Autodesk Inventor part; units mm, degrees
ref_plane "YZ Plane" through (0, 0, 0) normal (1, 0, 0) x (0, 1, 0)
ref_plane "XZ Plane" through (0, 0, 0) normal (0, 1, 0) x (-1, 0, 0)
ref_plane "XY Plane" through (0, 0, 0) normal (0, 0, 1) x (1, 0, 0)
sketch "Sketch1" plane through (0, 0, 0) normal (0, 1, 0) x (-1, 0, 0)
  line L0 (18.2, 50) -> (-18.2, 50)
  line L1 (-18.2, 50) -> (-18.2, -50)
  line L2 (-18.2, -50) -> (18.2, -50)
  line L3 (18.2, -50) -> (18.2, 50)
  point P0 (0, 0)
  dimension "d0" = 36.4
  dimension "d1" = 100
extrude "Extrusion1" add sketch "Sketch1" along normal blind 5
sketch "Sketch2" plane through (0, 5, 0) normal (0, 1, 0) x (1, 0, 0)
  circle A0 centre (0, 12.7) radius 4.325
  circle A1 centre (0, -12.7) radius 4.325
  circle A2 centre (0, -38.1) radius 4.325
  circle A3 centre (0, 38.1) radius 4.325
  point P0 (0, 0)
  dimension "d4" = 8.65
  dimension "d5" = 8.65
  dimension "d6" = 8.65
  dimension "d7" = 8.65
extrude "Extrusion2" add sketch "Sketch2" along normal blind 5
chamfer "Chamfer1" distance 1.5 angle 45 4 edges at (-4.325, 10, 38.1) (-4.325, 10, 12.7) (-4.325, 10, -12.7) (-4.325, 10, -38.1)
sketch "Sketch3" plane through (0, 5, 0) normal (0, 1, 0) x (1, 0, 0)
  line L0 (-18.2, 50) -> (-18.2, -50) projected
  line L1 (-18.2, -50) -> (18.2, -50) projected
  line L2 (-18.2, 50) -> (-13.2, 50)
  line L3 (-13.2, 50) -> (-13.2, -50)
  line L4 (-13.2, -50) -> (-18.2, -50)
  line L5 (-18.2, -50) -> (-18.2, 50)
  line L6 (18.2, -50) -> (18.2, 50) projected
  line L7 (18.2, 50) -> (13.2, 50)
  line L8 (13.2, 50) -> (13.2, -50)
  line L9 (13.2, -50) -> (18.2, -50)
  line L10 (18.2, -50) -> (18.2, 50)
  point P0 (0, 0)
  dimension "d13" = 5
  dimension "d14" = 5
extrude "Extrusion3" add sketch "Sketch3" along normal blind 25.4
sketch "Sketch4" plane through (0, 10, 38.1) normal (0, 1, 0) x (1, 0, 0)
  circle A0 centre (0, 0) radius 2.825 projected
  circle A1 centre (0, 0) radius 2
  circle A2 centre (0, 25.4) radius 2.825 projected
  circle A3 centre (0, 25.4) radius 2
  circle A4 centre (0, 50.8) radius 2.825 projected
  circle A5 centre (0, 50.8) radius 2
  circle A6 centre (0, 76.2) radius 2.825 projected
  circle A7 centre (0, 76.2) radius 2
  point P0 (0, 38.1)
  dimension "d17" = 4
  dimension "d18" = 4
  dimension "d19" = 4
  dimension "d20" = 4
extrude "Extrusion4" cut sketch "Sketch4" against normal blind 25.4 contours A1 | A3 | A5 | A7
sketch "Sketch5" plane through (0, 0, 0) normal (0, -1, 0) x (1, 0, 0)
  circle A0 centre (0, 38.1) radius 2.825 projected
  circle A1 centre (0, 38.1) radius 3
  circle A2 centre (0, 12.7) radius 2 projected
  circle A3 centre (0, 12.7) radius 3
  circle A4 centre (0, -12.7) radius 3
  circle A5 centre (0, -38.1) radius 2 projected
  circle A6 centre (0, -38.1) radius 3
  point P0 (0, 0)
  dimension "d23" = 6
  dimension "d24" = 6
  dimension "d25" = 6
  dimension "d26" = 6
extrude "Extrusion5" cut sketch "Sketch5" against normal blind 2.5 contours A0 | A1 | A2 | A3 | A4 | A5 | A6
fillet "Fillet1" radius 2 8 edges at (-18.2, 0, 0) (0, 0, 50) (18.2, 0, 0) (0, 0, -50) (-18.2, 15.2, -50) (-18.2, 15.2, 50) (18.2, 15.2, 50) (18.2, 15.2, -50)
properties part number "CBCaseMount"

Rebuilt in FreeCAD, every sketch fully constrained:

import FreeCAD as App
import Part
import Sketcher
from FreeCAD import Vector


def edges_at(feature, points):
    """Names of the edges that pass closest to the given points."""
    edges = feature.Shape.Edges
    near = lambda p: min(range(len(edges)), key=lambda i: edges[i].distToShape(Part.Vertex(*p))[0])
    return sorted({f"Edge{near(p) + 1}" for p in points})


def add_polygon(sketch, points):
    """Adds a closed chain of lines whose ends are joined by coincident constraints."""
    first, n = sketch.GeometryCount, len(points)
    for a, b in zip(points, points[1:] + points[:1]):
        sketch.addGeometry(Part.LineSegment(App.Vector(*a, 0), App.Vector(*b, 0)), False)
    for i in range(n):
        sketch.addConstraint(Sketcher.Constraint("Coincident", first + i, 2, first + (i + 1) % n, 1))

doc = App.newDocument("Part")
params = doc.addObject("Spreadsheet::Sheet", "Params")
for row, (alias, value) in enumerate([
    ("sketch1_height", "100 mm"),
    ("sketch1_width", "36.4 mm"),
    ("pad1_length", "5 mm"),
    ("sketch2_diameter", "8.65 mm"),
    ("pad2_length", "5 mm"),
    ("chamfer_size", "1.5 mm"),
    ("sketch3_width", "5 mm"),
    ("sketch3_height", "100 mm"),
    ("pad3_length", "25.4 mm"),
    ("sketch4_diameter", "4 mm"),
    ("pocket1_length", "25.4 mm"),
    ("sketch5_diameter", "6 mm"),
    ("pocket2_length", "2.5 mm"),
    ("fillet_radius", "2 mm"),
], start=1):
    params.set(f"A{row}", alias)
    params.set(f"B{row}", "=" + value)
    params.setAlias(f"B{row}", alias)

body = doc.addObject("PartDesign::Body", "Body")

# Sketch on XZ plane
sketch1 = doc.addObject("Sketcher::SketchObject", "Sketch")
body.addObject(sketch1)
sketch1.AttachmentSupport = (doc.XZ_Plane, [""])
sketch1.MapMode = "FlatFace"
add_polygon(sketch1, [(-18, -50), (-18, 50), (18, 50), (18, -50)])  # lines 0-3
sketch1.addConstraint([
    Sketcher.Constraint("Vertical", 0),
    Sketcher.Constraint("Horizontal", 1),
    Sketcher.Constraint("Vertical", 2),
    Sketcher.Constraint("Horizontal", 3),
    Sketcher.Constraint("Symmetric", 0, 2, 2, 2, -1, 1),
    Sketcher.Constraint("DistanceY", 0, 1, 0, 2, 100.0),
    Sketcher.Constraint("DistanceX", 1, 1, 1, 2, 36.4),
])
sketch1.setExpression("Constraints[9]", "Params.sketch1_height")
sketch1.setExpression("Constraints[10]", "Params.sketch1_width")
pad1 = doc.addObject("PartDesign::Pad", "Pad")
body.addObject(pad1)
pad1.Profile = sketch1
pad1.setExpression("Length", "Params.pad1_length")
pad1.Reversed = True

# Sketch on XZ plane
sketch2 = doc.addObject("Sketcher::SketchObject", "Sketch001")
body.addObject(sketch2)
sketch2.AttachmentSupport = (doc.XZ_Plane, [""])
sketch2.MapMode = "FlatFace"
sketch2.AttachmentOffset = App.Placement(Vector(0, 0, -5), App.Rotation())
sketch2.addGeometry([
    Part.Circle(Vector(0, -12.7, 0), Vector(0, 0, 1), 4.3),
    Part.Circle(Vector(0, 12.7, 0), Vector(0, 0, 1), 4.3),
    Part.Circle(Vector(0, 38.1, 0), Vector(0, 0, 1), 4.3),
    Part.Circle(Vector(0, -38.1, 0), Vector(0, 0, 1), 4.3),
], False)
sketch2.addConstraint([
    Sketcher.Constraint("Equal", 0, 1),
    Sketcher.Constraint("Equal", 1, 2),
    Sketcher.Constraint("Equal", 2, 3),
    Sketcher.Constraint("Symmetric", 0, 3, 1, 3, -1, 1),
    Sketcher.Constraint("Symmetric", 2, 3, 3, 3, -1, 1),
    Sketcher.Constraint("PointOnObject", 0, 3, -2),
    Sketcher.Constraint("PointOnObject", 2, 3, -2),
    Sketcher.Constraint("Diameter", 0, 8.65),
    Sketcher.Constraint("DistanceY", 0, 3, -1, 1, 12.7),
    Sketcher.Constraint("DistanceY", -1, 1, 2, 3, 38.1),
])
sketch2.setExpression("Constraints[7]", "Params.sketch2_diameter")
pad2 = doc.addObject("PartDesign::Pad", "Pad001")
body.addObject(pad2)
pad2.Profile = sketch2
pad2.setExpression("Length", "Params.pad2_length")
pad2.Reversed = True
doc.recompute()

chamfer = doc.addObject("PartDesign::Chamfer", "Chamfer")
body.addObject(chamfer)
chamfer.Base = (pad2, edges_at(pad2, [
    (-4.325, 10, 38.1),
    (-4.325, 10, 12.7),
    (-4.325, 10, -12.7),
    (-4.325, 10, -38.1),
]))
chamfer.setExpression("Size", "Params.chamfer_size")

# Sketch on XZ plane
sketch3 = doc.addObject("Sketcher::SketchObject", "Sketch002")
body.addObject(sketch3)
sketch3.AttachmentSupport = (doc.XZ_Plane, [""])
sketch3.MapMode = "FlatFace"
sketch3.AttachmentOffset = App.Placement(Vector(0, 0, -5), App.Rotation())
add_polygon(sketch3, [(-13, -50), (-18, -50), (-18, 50), (-13, 50)])  # lines 0-3
add_polygon(sketch3, [(13, -50), (13, 50), (18, 50), (18, -50)])  # lines 4-7
sketch3.addConstraint([
    Sketcher.Constraint("Horizontal", 0),
    Sketcher.Constraint("Vertical", 1),
    Sketcher.Constraint("Horizontal", 2),
    Sketcher.Constraint("Vertical", 3),
    Sketcher.Constraint("Vertical", 4),
    Sketcher.Constraint("Horizontal", 5),
    Sketcher.Constraint("Vertical", 6),
    Sketcher.Constraint("Horizontal", 7),
    Sketcher.Constraint("Symmetric", 3, 2, 4, 2, -1, 1),
    Sketcher.Constraint("Symmetric", 1, 2, 6, 2, -1, 1),
    Sketcher.Constraint("Horizontal", 2, 2, 4, 2),
    Sketcher.Constraint("DistanceX", 0, 2, 0, 1, 5.0),
    Sketcher.Constraint("DistanceY", 1, 1, 1, 2, 100.0),
    Sketcher.Constraint("DistanceX", 0, 2, -1, 1, 18.2),
])
sketch3.setExpression("Constraints[19]", "Params.sketch3_width")
sketch3.setExpression("Constraints[20]", "Params.sketch3_height")
pad3 = doc.addObject("PartDesign::Pad", "Pad002")
body.addObject(pad3)
pad3.Profile = sketch3
pad3.setExpression("Length", "Params.pad3_length")
pad3.Reversed = True

# Sketch on XZ plane
sketch4 = doc.addObject("Sketcher::SketchObject", "Sketch003")
body.addObject(sketch4)
sketch4.AttachmentSupport = (doc.XZ_Plane, [""])
sketch4.MapMode = "FlatFace"
sketch4.AttachmentOffset = App.Placement(Vector(0, 0, -10), App.Rotation())
sketch4.addGeometry([
    Part.Circle(Vector(0, 38.1, 0), Vector(0, 0, 1), 2),
    Part.Circle(Vector(0, 12.7, 0), Vector(0, 0, 1), 2),
    Part.Circle(Vector(0, -12.7, 0), Vector(0, 0, 1), 2),
    Part.Circle(Vector(0, -38.1, 0), Vector(0, 0, 1), 2),
], False)
sketch4.addConstraint([
    Sketcher.Constraint("Equal", 0, 1),
    Sketcher.Constraint("Equal", 1, 2),
    Sketcher.Constraint("Equal", 2, 3),
    Sketcher.Constraint("Symmetric", 1, 3, 2, 3, -1, 1),
    Sketcher.Constraint("Symmetric", 0, 3, 3, 3, -1, 1),
    Sketcher.Constraint("PointOnObject", 0, 3, -2),
    Sketcher.Constraint("PointOnObject", 1, 3, -2),
    Sketcher.Constraint("Diameter", 0, 4.0),
    Sketcher.Constraint("DistanceY", -1, 1, 0, 3, 38.1),
    Sketcher.Constraint("DistanceY", -1, 1, 1, 3, 12.7),
])
sketch4.setExpression("Constraints[7]", "Params.sketch4_diameter")
pocket1 = doc.addObject("PartDesign::Pocket", "Pocket")
body.addObject(pocket1)
pocket1.Profile = sketch4
pocket1.setExpression("Length", "Params.pocket1_length")
pocket1.Reversed = True

# Sketch on XZ plane
sketch5 = doc.addObject("Sketcher::SketchObject", "Sketch004")
body.addObject(sketch5)
sketch5.AttachmentSupport = (doc.XZ_Plane, [""])
sketch5.MapMode = "FlatFace"
sketch5.addGeometry([
    Part.Circle(Vector(0, 38.1, 0), Vector(0, 0, 1), 3),
    Part.Circle(Vector(0, 12.7, 0), Vector(0, 0, 1), 3),
    Part.Circle(Vector(0, -12.7, 0), Vector(0, 0, 1), 3),
    Part.Circle(Vector(0, -38.1, 0), Vector(0, 0, 1), 3),
], False)
sketch5.addConstraint([
    Sketcher.Constraint("Equal", 0, 1),
    Sketcher.Constraint("Equal", 1, 2),
    Sketcher.Constraint("Equal", 2, 3),
    Sketcher.Constraint("Symmetric", 1, 3, 2, 3, -1, 1),
    Sketcher.Constraint("Symmetric", 0, 3, 3, 3, -1, 1),
    Sketcher.Constraint("PointOnObject", 0, 3, -2),
    Sketcher.Constraint("PointOnObject", 1, 3, -2),
    Sketcher.Constraint("Diameter", 0, 6.0),
    Sketcher.Constraint("DistanceY", -1, 1, 0, 3, 38.1),
    Sketcher.Constraint("DistanceY", -1, 1, 1, 3, 12.7),
])
sketch5.setExpression("Constraints[7]", "Params.sketch5_diameter")
pocket2 = doc.addObject("PartDesign::Pocket", "Pocket001")
body.addObject(pocket2)
pocket2.Profile = sketch5
pocket2.setExpression("Length", "Params.pocket2_length")
doc.recompute()

fillet = doc.addObject("PartDesign::Fillet", "Fillet")
body.addObject(fillet)
fillet.Base = (pocket2, edges_at(pocket2, [
    (-18.2, 0, 0),
    (0, 0, 50),
    (18.2, 0, 0),
    (0, 0, -50),
    (-18.2, 15.2, -50),
    (-18.2, 15.2, 50),
    (18.2, 15.2, 50),
    (18.2, 15.2, -50),
]))
fillet.setExpression("Radius", "Params.fillet_radius")

doc.recompute()
